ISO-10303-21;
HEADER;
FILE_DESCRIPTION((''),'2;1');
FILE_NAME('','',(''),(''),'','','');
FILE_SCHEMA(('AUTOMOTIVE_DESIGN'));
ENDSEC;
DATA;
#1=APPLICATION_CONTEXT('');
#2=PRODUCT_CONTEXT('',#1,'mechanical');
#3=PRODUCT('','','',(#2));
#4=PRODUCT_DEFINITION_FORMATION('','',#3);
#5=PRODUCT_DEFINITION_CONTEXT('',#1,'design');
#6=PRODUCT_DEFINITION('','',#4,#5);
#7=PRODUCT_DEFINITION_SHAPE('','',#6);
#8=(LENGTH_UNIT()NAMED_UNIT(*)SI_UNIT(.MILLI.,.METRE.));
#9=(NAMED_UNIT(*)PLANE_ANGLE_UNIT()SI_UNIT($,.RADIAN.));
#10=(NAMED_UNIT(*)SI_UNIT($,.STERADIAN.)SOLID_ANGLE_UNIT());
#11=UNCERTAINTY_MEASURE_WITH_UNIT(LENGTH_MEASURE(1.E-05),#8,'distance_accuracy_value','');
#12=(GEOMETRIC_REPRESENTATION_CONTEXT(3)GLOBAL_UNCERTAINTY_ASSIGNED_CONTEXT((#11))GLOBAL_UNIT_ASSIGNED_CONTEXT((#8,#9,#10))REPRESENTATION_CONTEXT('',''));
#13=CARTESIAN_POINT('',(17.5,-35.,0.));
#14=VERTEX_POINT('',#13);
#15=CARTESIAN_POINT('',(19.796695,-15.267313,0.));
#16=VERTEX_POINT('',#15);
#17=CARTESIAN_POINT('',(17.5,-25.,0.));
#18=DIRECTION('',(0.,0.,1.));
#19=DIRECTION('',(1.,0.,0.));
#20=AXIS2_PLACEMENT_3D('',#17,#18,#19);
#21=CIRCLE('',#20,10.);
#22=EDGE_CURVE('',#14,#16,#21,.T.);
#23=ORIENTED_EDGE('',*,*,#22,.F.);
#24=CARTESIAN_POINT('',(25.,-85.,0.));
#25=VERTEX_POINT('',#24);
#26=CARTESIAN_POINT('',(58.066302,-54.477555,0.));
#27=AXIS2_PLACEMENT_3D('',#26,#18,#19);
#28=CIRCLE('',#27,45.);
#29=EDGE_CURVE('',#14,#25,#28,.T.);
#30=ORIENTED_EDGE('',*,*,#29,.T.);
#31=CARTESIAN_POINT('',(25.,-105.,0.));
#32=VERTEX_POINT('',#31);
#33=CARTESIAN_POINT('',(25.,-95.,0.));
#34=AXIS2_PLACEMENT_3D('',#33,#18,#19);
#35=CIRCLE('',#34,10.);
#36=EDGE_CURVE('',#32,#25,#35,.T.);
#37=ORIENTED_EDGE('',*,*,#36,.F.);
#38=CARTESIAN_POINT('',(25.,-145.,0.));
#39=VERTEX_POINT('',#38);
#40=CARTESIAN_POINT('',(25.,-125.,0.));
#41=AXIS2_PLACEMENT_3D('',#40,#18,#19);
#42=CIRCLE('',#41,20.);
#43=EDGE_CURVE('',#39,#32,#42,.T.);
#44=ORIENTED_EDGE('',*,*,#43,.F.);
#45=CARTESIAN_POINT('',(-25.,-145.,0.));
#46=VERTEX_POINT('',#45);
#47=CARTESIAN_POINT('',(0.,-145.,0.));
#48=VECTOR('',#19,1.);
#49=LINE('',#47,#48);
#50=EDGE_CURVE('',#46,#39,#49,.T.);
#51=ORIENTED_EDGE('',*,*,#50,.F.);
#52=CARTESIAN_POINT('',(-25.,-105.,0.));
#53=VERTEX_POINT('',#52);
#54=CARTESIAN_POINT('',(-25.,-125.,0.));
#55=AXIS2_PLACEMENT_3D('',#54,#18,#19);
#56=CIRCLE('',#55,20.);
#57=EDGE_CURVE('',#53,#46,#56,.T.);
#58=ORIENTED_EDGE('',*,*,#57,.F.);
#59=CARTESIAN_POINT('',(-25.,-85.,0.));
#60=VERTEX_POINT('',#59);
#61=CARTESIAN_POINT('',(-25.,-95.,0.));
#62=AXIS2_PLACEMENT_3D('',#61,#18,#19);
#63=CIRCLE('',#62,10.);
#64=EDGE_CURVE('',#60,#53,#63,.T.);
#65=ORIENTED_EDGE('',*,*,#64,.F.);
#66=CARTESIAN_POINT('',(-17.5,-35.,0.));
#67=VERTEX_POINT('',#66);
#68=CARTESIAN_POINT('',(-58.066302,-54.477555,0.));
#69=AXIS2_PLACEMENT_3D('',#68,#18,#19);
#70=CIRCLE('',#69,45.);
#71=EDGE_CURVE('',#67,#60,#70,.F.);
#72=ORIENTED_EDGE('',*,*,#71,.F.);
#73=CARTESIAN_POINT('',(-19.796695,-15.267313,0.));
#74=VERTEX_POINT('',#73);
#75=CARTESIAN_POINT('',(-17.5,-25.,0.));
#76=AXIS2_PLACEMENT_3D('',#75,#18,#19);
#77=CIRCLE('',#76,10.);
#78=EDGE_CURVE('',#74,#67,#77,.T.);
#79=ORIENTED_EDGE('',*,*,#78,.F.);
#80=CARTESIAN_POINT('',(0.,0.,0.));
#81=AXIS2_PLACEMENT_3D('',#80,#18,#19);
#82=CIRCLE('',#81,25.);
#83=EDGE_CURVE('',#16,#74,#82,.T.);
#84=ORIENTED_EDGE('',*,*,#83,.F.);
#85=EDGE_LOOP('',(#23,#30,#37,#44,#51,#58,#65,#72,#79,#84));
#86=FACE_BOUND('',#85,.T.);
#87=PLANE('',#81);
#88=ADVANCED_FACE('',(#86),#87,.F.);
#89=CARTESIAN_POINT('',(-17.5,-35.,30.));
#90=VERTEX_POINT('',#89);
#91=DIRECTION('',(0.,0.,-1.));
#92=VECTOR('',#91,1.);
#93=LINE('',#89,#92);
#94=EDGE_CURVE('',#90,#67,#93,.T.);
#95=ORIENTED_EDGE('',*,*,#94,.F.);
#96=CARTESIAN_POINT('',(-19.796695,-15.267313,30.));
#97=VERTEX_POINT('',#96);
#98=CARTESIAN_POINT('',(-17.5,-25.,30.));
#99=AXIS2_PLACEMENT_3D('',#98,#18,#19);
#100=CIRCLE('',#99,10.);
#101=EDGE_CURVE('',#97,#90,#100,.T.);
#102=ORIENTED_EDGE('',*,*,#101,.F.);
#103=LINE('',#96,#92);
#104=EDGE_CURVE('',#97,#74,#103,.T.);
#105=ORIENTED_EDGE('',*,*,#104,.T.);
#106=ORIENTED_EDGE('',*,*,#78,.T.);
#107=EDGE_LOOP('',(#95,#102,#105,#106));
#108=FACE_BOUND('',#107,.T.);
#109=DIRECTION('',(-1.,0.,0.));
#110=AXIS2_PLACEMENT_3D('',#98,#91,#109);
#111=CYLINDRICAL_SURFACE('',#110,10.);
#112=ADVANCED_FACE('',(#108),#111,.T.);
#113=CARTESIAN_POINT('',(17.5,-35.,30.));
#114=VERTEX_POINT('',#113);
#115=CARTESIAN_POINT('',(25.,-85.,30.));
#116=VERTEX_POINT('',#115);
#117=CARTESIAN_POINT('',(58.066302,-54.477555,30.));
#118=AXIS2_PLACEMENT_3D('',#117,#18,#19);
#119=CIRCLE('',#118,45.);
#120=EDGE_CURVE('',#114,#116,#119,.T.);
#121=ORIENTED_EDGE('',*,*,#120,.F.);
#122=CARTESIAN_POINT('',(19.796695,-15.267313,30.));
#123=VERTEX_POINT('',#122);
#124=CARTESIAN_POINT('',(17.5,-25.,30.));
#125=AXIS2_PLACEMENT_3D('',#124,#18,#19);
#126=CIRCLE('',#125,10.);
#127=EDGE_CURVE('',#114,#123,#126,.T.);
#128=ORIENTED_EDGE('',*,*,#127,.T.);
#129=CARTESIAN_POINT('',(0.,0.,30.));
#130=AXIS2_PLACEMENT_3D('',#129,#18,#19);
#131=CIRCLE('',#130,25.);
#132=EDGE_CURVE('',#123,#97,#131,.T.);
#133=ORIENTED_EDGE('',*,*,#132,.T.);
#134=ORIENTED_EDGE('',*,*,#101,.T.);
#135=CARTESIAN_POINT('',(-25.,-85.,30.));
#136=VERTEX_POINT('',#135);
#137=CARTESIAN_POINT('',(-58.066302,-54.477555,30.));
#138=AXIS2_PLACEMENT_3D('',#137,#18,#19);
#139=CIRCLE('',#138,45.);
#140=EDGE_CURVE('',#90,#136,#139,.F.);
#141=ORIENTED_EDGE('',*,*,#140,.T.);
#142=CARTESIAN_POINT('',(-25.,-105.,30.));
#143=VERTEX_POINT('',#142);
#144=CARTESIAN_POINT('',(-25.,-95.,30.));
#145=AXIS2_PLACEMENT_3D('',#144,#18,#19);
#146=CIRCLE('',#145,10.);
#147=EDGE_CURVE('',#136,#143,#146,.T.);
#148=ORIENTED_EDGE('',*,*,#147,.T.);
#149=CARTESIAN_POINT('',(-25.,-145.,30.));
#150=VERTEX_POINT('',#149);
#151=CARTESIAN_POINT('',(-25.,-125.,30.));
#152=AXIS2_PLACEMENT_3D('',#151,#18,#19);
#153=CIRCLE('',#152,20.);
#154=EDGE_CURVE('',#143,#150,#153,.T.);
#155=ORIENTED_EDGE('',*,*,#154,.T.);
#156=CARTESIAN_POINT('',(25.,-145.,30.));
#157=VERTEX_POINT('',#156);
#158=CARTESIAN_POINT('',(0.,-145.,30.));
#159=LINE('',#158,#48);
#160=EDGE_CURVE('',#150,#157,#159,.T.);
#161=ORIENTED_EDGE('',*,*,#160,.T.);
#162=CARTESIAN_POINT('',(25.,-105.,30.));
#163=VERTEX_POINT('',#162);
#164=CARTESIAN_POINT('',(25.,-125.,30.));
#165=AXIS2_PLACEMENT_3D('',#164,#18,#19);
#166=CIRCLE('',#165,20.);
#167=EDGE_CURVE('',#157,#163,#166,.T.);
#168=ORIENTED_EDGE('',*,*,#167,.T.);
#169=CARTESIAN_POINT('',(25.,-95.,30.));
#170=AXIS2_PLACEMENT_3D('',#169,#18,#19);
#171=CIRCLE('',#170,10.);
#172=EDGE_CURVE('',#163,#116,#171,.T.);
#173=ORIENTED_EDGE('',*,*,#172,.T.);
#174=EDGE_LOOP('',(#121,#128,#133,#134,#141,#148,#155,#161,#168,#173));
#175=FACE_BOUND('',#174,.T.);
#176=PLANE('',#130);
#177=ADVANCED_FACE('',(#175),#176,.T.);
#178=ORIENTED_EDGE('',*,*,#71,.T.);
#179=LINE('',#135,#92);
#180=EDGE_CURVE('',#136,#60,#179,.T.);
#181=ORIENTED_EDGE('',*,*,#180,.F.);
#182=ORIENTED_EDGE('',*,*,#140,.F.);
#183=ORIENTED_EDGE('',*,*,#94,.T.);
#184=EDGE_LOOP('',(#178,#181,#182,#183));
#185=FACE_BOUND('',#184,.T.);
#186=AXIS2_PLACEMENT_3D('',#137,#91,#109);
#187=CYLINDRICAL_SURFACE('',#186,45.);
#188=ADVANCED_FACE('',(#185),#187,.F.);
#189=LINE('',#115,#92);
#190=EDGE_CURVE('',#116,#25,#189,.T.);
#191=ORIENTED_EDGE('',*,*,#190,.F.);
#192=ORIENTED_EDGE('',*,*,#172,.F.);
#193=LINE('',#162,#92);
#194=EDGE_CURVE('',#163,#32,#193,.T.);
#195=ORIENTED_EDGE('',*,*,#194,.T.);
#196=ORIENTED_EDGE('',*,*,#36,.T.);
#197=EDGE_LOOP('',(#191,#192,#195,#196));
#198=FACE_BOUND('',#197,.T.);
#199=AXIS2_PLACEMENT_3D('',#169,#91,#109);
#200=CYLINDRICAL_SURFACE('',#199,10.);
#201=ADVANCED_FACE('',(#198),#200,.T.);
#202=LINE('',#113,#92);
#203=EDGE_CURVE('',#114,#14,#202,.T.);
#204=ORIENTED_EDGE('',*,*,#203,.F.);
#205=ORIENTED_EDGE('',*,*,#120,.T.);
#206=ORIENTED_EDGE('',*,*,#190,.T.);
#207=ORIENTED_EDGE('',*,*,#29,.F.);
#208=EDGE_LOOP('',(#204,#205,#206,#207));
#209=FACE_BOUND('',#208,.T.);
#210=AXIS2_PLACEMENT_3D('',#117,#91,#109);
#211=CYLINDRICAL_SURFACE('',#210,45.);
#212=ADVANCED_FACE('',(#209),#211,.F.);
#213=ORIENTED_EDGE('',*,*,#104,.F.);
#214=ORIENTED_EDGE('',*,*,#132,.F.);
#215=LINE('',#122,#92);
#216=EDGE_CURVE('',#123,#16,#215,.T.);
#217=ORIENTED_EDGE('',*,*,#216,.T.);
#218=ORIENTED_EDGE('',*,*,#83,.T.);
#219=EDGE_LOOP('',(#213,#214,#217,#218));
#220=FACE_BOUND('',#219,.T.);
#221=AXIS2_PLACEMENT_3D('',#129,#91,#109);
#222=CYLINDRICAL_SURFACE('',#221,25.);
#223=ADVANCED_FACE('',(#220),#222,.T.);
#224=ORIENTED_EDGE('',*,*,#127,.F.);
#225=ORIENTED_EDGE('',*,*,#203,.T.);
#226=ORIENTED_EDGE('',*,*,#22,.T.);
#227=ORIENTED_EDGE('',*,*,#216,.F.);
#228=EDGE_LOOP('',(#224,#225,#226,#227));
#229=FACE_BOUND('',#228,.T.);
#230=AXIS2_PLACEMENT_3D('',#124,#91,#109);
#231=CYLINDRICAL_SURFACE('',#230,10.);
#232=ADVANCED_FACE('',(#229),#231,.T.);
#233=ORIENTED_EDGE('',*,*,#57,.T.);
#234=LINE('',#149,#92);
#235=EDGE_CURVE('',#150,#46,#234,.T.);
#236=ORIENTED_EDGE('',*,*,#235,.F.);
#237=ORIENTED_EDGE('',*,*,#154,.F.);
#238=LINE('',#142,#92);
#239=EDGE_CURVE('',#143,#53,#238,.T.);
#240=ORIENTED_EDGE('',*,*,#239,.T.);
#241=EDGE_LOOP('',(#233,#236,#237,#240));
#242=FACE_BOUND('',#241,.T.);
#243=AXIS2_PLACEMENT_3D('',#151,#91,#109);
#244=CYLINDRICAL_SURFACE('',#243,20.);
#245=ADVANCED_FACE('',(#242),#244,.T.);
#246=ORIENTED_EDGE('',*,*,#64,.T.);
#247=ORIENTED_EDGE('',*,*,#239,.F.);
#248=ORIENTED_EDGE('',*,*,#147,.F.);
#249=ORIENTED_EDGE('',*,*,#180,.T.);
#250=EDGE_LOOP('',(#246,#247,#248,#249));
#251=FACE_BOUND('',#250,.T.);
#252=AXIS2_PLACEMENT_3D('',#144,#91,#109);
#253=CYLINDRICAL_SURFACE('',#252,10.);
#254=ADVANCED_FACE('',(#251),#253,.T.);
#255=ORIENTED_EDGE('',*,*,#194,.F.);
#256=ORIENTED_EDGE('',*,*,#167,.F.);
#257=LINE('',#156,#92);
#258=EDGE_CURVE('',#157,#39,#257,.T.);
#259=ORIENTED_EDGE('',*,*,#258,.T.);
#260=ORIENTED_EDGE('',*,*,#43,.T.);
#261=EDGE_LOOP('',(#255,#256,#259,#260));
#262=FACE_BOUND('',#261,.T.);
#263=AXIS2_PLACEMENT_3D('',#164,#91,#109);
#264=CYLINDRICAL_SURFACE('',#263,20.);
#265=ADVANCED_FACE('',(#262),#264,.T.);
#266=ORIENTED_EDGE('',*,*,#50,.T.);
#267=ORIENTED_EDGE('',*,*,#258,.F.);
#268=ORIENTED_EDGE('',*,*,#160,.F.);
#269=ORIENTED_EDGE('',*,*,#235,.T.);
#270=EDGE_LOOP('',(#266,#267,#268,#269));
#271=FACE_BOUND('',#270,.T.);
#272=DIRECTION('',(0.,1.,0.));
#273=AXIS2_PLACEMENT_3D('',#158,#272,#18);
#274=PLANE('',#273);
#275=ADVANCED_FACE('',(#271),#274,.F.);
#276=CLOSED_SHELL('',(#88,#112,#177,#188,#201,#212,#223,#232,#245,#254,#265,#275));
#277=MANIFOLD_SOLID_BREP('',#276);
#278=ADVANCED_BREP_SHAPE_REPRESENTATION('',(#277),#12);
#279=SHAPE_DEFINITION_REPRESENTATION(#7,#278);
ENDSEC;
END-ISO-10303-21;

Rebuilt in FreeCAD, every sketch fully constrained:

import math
import FreeCAD as App
import Part
import Sketcher

V = App.Vector
Q = App.Units.Quantity

doc = App.newDocument("Part")
body = doc.addObject("PartDesign::Body", "Body")

# Sketch on XY plane
sketch1 = body.newObject("Sketcher::SketchObject", "Sketch")
sketch1.AttachmentSupport = (doc.getObject("XY_Plane"), [""])
sketch1.MapMode = "FlatFace"
sketch1.addGeometry(Part.ArcOfCircle(Part.Circle(V(0, 0, 0), V(0, 0, 1), 25), math.radians(-38), math.radians(218)), False)
sketch1.addGeometry(Part.ArcOfCircle(Part.Circle(V(-18, -25, 0), V(0, 0, 1), 10), math.radians(103), math.radians(270)), False)
sketch1.addGeometry(Part.ArcOfCircle(Part.Circle(V(-58, -54, 0), V(0, 0, 1), 45), math.radians(-43), math.radians(26)), False)
sketch1.addGeometry(Part.ArcOfCircle(Part.Circle(V(-25, -95, 0), V(0, 0, 1), 10), math.radians(90), math.radians(270)), False)
sketch1.addGeometry(Part.ArcOfCircle(Part.Circle(V(-25, -125, 0), V(0, 0, 1), 20), math.radians(90), math.radians(270)), False)
sketch1.addGeometry(Part.LineSegment(V(-25, -145, 0), V(25, -145, 0)), False)
sketch1.addGeometry(Part.ArcOfCircle(Part.Circle(V(25, -125, 0), V(0, 0, 1), 20), math.radians(-90), math.radians(90)), False)
sketch1.addGeometry(Part.ArcOfCircle(Part.Circle(V(25, -95, 0), V(0, 0, 1), 10), math.radians(-90), math.radians(90)), False)
sketch1.addGeometry(Part.ArcOfCircle(Part.Circle(V(58, -54, 0), V(0, 0, 1), 45), math.radians(154), math.radians(223)), False)
sketch1.addGeometry(Part.ArcOfCircle(Part.Circle(V(18, -25, 0), V(0, 0, 1), 10), math.radians(-90), math.radians(77)), False)
sketch1.addConstraint(Sketcher.Constraint("Coincident", 0, 2, 1, 1))
sketch1.addConstraint(Sketcher.Constraint("Coincident", 1, 2, 2, 2))
sketch1.addConstraint(Sketcher.Constraint("Coincident", 2, 1, 3, 1))
sketch1.addConstraint(Sketcher.Constraint("Tangent", 3, 2, 4, 1))
sketch1.addConstraint(Sketcher.Constraint("Tangent", 4, 2, 5, 1))
sketch1.addConstraint(Sketcher.Constraint("Tangent", 5, 2, 6, 1))
sketch1.addConstraint(Sketcher.Constraint("Tangent", 6, 2, 7, 1))
sketch1.addConstraint(Sketcher.Constraint("Coincident", 7, 2, 8, 2))
sketch1.addConstraint(Sketcher.Constraint("Coincident", 8, 1, 9, 1))
sketch1.addConstraint(Sketcher.Constraint("Coincident", 9, 2, 0, 1))
sketch1.addConstraint(Sketcher.Constraint("Horizontal", 5))
sketch1.addConstraint(Sketcher.Constraint("Coincident", 0, 3, -1, 1))
sketch1.addConstraint(Sketcher.Constraint("Equal", 1, 3))
sketch1.addConstraint(Sketcher.Constraint("Equal", 4, 6))
sketch1.addConstraint(Sketcher.Constraint("Equal", 3, 7))
sketch1.addConstraint(Sketcher.Constraint("Equal", 2, 8))
sketch1.addConstraint(Sketcher.Constraint("Equal", 7, 9))
sketch1.addConstraint(Sketcher.Constraint("Symmetric", 2, 3, 8, 3, -2))
sketch1.addConstraint(Sketcher.Constraint("Symmetric", 1, 3, 9, 3, -2))
sketch1.addConstraint(Sketcher.Constraint("Vertical", 3, 3, 4, 3))
sketch1.addConstraint(Sketcher.Constraint("Vertical", 6, 3, 7, 3))
sketch1.addConstraint(Sketcher.Constraint("Vertical", 4, 3, 2, 1))
sketch1.addConstraint(Sketcher.Constraint("Vertical", 6, 2, 7, 2))
sketch1.addConstraint(Sketcher.Constraint("Vertical", 9, 3, 8, 1))
sketch1.addConstraint(Sketcher.Constraint("Radius", 0, Q("25 mm")))
sketch1.addConstraint(Sketcher.Constraint("Radius", 1, Q("10 mm")))
sketch1.addConstraint(Sketcher.Constraint("Radius", 2, Q("45 mm")))
sketch1.addConstraint(Sketcher.Constraint("Radius", 4, Q("20 mm")))
sketch1.addConstraint(Sketcher.Constraint("DistanceX", 5, 1, 5, 2, Q("50 mm")))
sketch1.addConstraint(Sketcher.Constraint("DistanceY", 1, 3, -1, 1, Q("25 mm")))
sketch1.addConstraint(Sketcher.Constraint("DistanceY", 3, 3, -1, 1, Q("95 mm")))
sketch1.addConstraint(Sketcher.Constraint("DistanceX", 1, 3, 9, 3, Q("35 mm")))
pad1 = body.newObject("PartDesign::Pad", "Pad")
pad1.Profile = sketch1
pad1.Length = 30

doc.recompute()
